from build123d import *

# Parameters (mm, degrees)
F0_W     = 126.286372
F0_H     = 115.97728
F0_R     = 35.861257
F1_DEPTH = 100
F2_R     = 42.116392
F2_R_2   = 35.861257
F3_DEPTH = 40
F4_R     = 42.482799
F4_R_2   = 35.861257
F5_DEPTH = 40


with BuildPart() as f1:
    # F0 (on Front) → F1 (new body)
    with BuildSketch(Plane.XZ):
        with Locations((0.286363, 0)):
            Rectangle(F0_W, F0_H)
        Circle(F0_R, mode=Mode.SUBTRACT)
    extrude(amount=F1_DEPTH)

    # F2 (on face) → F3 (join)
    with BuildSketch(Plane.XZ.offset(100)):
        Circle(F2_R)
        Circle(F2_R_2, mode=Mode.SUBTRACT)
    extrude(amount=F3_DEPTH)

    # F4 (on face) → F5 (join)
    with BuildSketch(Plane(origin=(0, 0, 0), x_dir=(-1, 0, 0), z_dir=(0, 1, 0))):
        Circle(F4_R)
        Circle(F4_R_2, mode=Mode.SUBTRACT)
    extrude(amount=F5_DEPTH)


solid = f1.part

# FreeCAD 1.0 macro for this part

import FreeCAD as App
import Part
import Sketcher

V = App.Vector

doc = App.newDocument("Part")
params = doc.addObject("Spreadsheet::Sheet", "Params")
for row, (alias, value) in enumerate([
    ("pad1_length", "100 mm"),
    ("pad2_length", "40 mm"),
    ("pad3_length", "40 mm"),
], start=1):
    params.set(f"A{row}", alias)
    params.set(f"B{row}", "=" + value)
    params.setAlias(f"B{row}", alias)

body = doc.addObject("PartDesign::Body", "Body")

# Sketch on XZ plane
sketch1 = body.newObject("Sketcher::SketchObject", "Sketch")
sketch1.AttachmentSupport = (doc.getObject("XZ_Plane"), [""])
sketch1.MapMode = "FlatFace"
sketch1.addGeometry(Part.LineSegment(V(-63, 58, 0), V(-63, -58, 0)), False)
sketch1.addGeometry(Part.LineSegment(V(-63, -58, 0), V(63, -58, 0)), False)
sketch1.addGeometry(Part.LineSegment(V(63, -58, 0), V(63, 58, 0)), False)
sketch1.addGeometry(Part.LineSegment(V(63, 58, 0), V(-63, 58, 0)), False)
sketch1.addGeometry(Part.Circle(V(0, 0, 0), V(0, 0, 1), 36), False)
sketch1.addConstraint(Sketcher.Constraint("Coincident", 0, 2, 1, 1))
sketch1.addConstraint(Sketcher.Constraint("Coincident", 1, 2, 2, 1))
sketch1.addConstraint(Sketcher.Constraint("Coincident", 2, 2, 3, 1))
sketch1.addConstraint(Sketcher.Constraint("Coincident", 3, 2, 0, 1))
sketch1.addConstraint(Sketcher.Constraint("Vertical", 0))
sketch1.addConstraint(Sketcher.Constraint("Horizontal", 1))
sketch1.addConstraint(Sketcher.Constraint("Vertical", 2))
sketch1.addConstraint(Sketcher.Constraint("Horizontal", 3))
sketch1.addConstraint(Sketcher.Constraint("Coincident", 4, 3, -1, 1))
sketch1.addConstraint(Sketcher.Constraint("Diameter", 4, 71.722514))
sketch1.addConstraint(Sketcher.Constraint("DistanceX", 1, 1, 1, 2, 126.286372))
sketch1.addConstraint(Sketcher.Constraint("DistanceY", 0, 2, 0, 1, 115.97728))
sketch1.addConstraint(Sketcher.Constraint("DistanceY", 0, 2, -1, 1, 57.98864))
sketch1.addConstraint(Sketcher.Constraint("DistanceX", -1, 1, 1, 2, 63.429549))
pad1 = body.newObject("PartDesign::Pad", "Pad")
pad1.Profile = sketch1
pad1.setExpression("Length", "Params.pad1_length")

# Sketch on XZ plane
sketch2 = body.newObject("Sketcher::SketchObject", "Sketch001")
sketch2.AttachmentSupport = (doc.getObject("XZ_Plane"), [""])
sketch2.MapMode = "FlatFace"
sketch2.AttachmentOffset = App.Placement(V(0, 0, 100), App.Rotation())
sketch2.addGeometry(Part.Circle(V(0, 0, 0), V(0, 0, 1), 42), False)
sketch2.addGeometry(Part.Circle(V(0, 0, 0), V(0, 0, 1), 36), False)
sketch2.addConstraint(Sketcher.Constraint("Coincident", 0, 3, -1, 1))
sketch2.addConstraint(Sketcher.Constraint("Coincident", 1, 3, -1, 1))
sketch2.addConstraint(Sketcher.Constraint("Diameter", 0, 84.232784))
sketch2.addConstraint(Sketcher.Constraint("Diameter", 1, 71.722514))
pad2 = body.newObject("PartDesign::Pad", "Pad001")
pad2.Profile = sketch2
pad2.setExpression("Length", "Params.pad2_length")

# Sketch on XZ plane
sketch3 = body.newObject("Sketcher::SketchObject", "Sketch002")
sketch3.AttachmentSupport = (doc.getObject("XZ_Plane"), [""])
sketch3.MapMode = "FlatFace"
sketch3.addGeometry(Part.Circle(V(0, 0, 0), V(0, 0, 1), 42), False)
sketch3.addGeometry(Part.Circle(V(0, 0, 0), V(0, 0, 1), 36), False)
sketch3.addConstraint(Sketcher.Constraint("Coincident", 0, 3, -1, 1))
sketch3.addConstraint(Sketcher.Constraint("Coincident", 1, 3, -1, 1))
sketch3.addConstraint(Sketcher.Constraint("Diameter", 0, 84.965598))
sketch3.addConstraint(Sketcher.Constraint("Diameter", 1, 71.722514))
pad3 = body.newObject("PartDesign::Pad", "Pad002")
pad3.Profile = sketch3
pad3.setExpression("Length", "Params.pad3_length")
pad3.Reversed = True

doc.recompute()
